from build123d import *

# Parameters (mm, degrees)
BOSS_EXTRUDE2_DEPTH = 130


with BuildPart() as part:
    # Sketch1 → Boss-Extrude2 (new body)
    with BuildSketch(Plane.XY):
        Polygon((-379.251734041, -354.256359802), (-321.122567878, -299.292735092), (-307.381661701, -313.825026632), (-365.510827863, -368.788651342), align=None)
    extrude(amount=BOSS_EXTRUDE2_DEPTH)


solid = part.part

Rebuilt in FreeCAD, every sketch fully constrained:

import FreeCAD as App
import Part
import Sketcher

V = App.Vector
Q = App.Units.Quantity


def add_polygon(sketch, points):
    """Adds a closed chain of lines whose ends are joined by coincident constraints."""
    first, n = sketch.GeometryCount, len(points)
    for a, b in zip(points, points[1:] + points[:1]):
        sketch.addGeometry(Part.LineSegment(App.Vector(*a, 0), App.Vector(*b, 0)), False)
    for i in range(n):
        sketch.addConstraint(Sketcher.Constraint("Coincident", first + i, 2, first + (i + 1) % n, 1))

doc = App.newDocument("Part")
params = doc.addObject("Spreadsheet::Sheet", "Params")
for row, (alias, value) in enumerate([
    ("sketch1_length", "80 mm"),
    ("sketch1_length2", "20 mm"),
    ("pad1_length", "130 mm"),
], start=1):
    params.set(f"A{row}", alias)
    params.set(f"B{row}", "=" + value)
    params.setAlias(f"B{row}", alias)

body = doc.addObject("PartDesign::Body", "Body")

sketch1 = body.newObject("Sketcher::SketchObject", "Sketch")
sketch1.AttachmentSupport = (doc.getObject("XY_Plane"), [""])
sketch1.MapMode = "FlatFace"
add_polygon(sketch1, [(-321, -299), (-379, -354), (-366, -369), (-307, -314)])
sketch1.addConstraint([
    Sketcher.Constraint("Perpendicular", 0, 1),
    Sketcher.Constraint("Perpendicular", 1, 2),
    Sketcher.Constraint("Perpendicular", 2, 3),
    Sketcher.Constraint("Distance", 0, Q("80 mm")),
    Sketcher.Constraint("Distance", 1, Q("20 mm")),
    Sketcher.Constraint("DistanceY", 0, 2, -1, 1, Q("354.25636 mm")),
    Sketcher.Constraint("DistanceY", 1, 2, -1, 1, Q("368.788651 mm")),
    Sketcher.Constraint("DistanceX", 2, 2, -1, 1, Q("307.381662 mm")),
])
sketch1.setExpression("Constraints[7]", "Params.sketch1_length")
sketch1.setExpression("Constraints[8]", "Params.sketch1_length2")
pad1 = body.newObject("PartDesign::Pad", "Pad")
pad1.Profile = sketch1
pad1.setExpression("Length", "Params.pad1_length")

doc.recompute()
